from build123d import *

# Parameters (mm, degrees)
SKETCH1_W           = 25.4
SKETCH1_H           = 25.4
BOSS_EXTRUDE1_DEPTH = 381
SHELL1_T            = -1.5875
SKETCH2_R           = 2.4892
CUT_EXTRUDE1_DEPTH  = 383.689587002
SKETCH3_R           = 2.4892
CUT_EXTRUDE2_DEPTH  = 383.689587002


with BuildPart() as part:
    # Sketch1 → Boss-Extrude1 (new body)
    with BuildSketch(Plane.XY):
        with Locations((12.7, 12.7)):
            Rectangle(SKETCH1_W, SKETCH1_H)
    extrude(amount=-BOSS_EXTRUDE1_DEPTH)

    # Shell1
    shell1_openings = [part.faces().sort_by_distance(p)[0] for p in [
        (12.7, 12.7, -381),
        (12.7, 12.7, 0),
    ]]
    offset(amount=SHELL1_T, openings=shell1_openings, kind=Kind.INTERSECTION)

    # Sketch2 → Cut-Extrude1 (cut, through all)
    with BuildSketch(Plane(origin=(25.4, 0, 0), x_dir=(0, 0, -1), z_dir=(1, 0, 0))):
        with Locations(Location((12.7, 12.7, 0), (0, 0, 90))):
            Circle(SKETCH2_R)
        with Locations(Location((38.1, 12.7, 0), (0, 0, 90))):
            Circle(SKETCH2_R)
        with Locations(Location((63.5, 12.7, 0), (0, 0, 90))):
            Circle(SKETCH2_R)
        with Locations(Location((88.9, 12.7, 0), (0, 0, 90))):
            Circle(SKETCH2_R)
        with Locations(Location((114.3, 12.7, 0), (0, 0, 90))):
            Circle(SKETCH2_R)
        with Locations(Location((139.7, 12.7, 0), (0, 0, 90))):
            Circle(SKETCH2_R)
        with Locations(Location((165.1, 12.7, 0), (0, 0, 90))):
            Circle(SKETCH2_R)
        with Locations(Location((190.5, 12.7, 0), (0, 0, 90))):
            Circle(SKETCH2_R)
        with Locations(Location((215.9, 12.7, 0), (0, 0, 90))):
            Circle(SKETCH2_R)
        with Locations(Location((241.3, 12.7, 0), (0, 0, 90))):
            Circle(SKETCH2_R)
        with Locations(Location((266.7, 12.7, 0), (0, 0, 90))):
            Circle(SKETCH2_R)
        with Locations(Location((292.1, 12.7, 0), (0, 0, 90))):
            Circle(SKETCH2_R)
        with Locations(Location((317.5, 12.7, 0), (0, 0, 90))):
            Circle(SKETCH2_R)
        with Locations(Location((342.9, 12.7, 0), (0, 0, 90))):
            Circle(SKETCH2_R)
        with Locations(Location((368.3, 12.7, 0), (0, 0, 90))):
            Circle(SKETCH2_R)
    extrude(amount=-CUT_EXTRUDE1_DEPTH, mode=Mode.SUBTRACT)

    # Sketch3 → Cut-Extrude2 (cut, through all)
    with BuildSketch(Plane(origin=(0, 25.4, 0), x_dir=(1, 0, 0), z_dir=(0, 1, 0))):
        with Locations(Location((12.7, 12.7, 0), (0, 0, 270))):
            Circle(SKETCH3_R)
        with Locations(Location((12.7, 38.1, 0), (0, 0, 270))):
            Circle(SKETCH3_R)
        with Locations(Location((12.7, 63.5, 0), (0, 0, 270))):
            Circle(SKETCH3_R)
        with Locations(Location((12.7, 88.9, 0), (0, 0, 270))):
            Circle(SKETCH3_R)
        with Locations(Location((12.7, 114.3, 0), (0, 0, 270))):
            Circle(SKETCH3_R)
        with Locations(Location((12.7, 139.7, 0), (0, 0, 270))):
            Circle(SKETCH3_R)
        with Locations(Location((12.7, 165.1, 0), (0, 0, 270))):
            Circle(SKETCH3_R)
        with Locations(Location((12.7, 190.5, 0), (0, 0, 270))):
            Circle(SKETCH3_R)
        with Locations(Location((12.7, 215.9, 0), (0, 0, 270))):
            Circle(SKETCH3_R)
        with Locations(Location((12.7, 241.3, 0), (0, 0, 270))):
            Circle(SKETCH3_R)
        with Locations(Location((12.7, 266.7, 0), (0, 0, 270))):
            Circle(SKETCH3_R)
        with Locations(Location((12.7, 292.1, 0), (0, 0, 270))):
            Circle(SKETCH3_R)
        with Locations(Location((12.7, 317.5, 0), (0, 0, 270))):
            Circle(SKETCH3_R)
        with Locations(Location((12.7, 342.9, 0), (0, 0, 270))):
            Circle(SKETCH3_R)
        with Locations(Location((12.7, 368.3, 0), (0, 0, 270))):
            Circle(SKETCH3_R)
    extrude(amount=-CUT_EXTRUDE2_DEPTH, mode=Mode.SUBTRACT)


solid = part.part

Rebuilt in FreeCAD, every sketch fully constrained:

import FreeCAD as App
import Part
import Sketcher

V = App.Vector
Q = App.Units.Quantity


def faces_at(feature, points):
    """Names of the faces that lie closest to the given points."""
    faces = feature.Shape.Faces
    near = lambda p: min(range(len(faces)), key=lambda i: faces[i].distToShape(Part.Vertex(*p))[0])
    return sorted({f"Face{near(p) + 1}" for p in points})

doc = App.newDocument("Part")
body = doc.addObject("PartDesign::Body", "Body")

sketch1 = doc.addObject("Sketcher::SketchObject", "Sketch")
body.addObject(sketch1)
sketch1.AttachmentSupport = (doc.XY_Plane, [""])
sketch1.MapMode = "FlatFace"
sketch1.addGeometry([
    Part.LineSegment(V(0, 25, 0), V(0, 0, 0)),
    Part.LineSegment(V(0, 0, 0), V(25, 0, 0)),
    Part.LineSegment(V(25, 0, 0), V(25, 25, 0)),
    Part.LineSegment(V(25, 25, 0), V(0, 25, 0)),
], False)
sketch1.addConstraint([
    Sketcher.Constraint("Coincident", 0, 2, 1, 1),
    Sketcher.Constraint("Coincident", 1, 2, 2, 1),
    Sketcher.Constraint("Coincident", 2, 2, 3, 1),
    Sketcher.Constraint("Coincident", 3, 2, 0, 1),
    Sketcher.Constraint("Vertical", 0),
    Sketcher.Constraint("Horizontal", 1),
    Sketcher.Constraint("Vertical", 2),
    Sketcher.Constraint("Horizontal", 3),
    Sketcher.Constraint("Coincident", 0, 2, -1, 1),
    Sketcher.Constraint("Equal", 3, 0),
    Sketcher.Constraint("DistanceX", 1, 1, 1, 2, Q("1 in")),
])
pad1 = doc.addObject("PartDesign::Pad", "Pad")
body.addObject(pad1)
pad1.Profile = sketch1
pad1.Length = Q("15 in")
pad1.Reversed = True
doc.recompute()

thickness = doc.addObject("PartDesign::Thickness", "Thickness")
body.addObject(thickness)
thickness.Base = (pad1, faces_at(pad1, [(12.7, 12.7, -381), (12.7, 12.7, 0)]))
thickness.Value = Q("0.0625 in")
thickness.Reversed = True
thickness.Join = "Intersection"

sketch2 = doc.addObject("Sketcher::SketchObject", "Sketch001")
body.addObject(sketch2)
sketch2.AttachmentSupport = (doc.YZ_Plane, [""])
sketch2.MapMode = "FlatFace"
sketch2.AttachmentOffset = App.Placement(V(0, 0, 1 * 25.4), App.Rotation())
sketch2.addGeometry([
    Part.Circle(V(12.7, -12.7, 0), V(0, 0, 1), 2.5),
    Part.Circle(V(12.7, -38.1, 0), V(0, 0, 1), 2.5),
    Part.Circle(V(12.7, -63.5, 0), V(0, 0, 1), 2.5),
    Part.Circle(V(12.7, -88.9, 0), V(0, 0, 1), 2.5),
    Part.Circle(V(12.7, -114.3, 0), V(0, 0, 1), 2.5),
    Part.Circle(V(12.7, -139.7, 0), V(0, 0, 1), 2.5),
    Part.Circle(V(12.7, -165.1, 0), V(0, 0, 1), 2.5),
    Part.Circle(V(12.7, -190.5, 0), V(0, 0, 1), 2.5),
    Part.Circle(V(12.7, -215.9, 0), V(0, 0, 1), 2.5),
    Part.Circle(V(12.7, -241.3, 0), V(0, 0, 1), 2.5),
    Part.Circle(V(12.7, -266.7, 0), V(0, 0, 1), 2.5),
    Part.Circle(V(12.7, -292.1, 0), V(0, 0, 1), 2.5),
    Part.Circle(V(12.7, -317.5, 0), V(0, 0, 1), 2.5),
    Part.Circle(V(12.7, -342.9, 0), V(0, 0, 1), 2.5),
    Part.Circle(V(12.7, -368.3, 0), V(0, 0, 1), 2.5),
], False)
sketch2.addConstraint([
    Sketcher.Constraint("Equal", 0, 1),
    Sketcher.Constraint("Equal", 1, 2),
    Sketcher.Constraint("Equal", 2, 3),
    Sketcher.Constraint("Equal", 3, 4),
    Sketcher.Constraint("Equal", 4, 5),
    Sketcher.Constraint("Equal", 5, 6),
    Sketcher.Constraint("Equal", 6, 7),
    Sketcher.Constraint("Equal", 7, 8),
    Sketcher.Constraint("Equal", 8, 9),
    Sketcher.Constraint("Equal", 9, 10),
    Sketcher.Constraint("Equal", 10, 11),
    Sketcher.Constraint("Equal", 11, 12),
    Sketcher.Constraint("Equal", 12, 13),
    Sketcher.Constraint("Equal", 13, 14),
    Sketcher.Constraint("Vertical", 0, 3, 1, 3),
    Sketcher.Constraint("Vertical", 1, 3, 2, 3),
    Sketcher.Constraint("Vertical", 2, 3, 3, 3),
    Sketcher.Constraint("Vertical", 3, 3, 4, 3),
    Sketcher.Constraint("Vertical", 4, 3, 5, 3),
    Sketcher.Constraint("Vertical", 5, 3, 6, 3),
    Sketcher.Constraint("Vertical", 6, 3, 7, 3),
    Sketcher.Constraint("Vertical", 7, 3, 8, 3),
    Sketcher.Constraint("Vertical", 8, 3, 9, 3),
    Sketcher.Constraint("Vertical", 9, 3, 10, 3),
    Sketcher.Constraint("Vertical", 10, 3, 11, 3),
    Sketcher.Constraint("Vertical", 11, 3, 12, 3),
    Sketcher.Constraint("Vertical", 12, 3, 13, 3),
    Sketcher.Constraint("Vertical", 13, 3, 14, 3),
    Sketcher.Constraint("Diameter", 0, Q("0.196 in")),
    Sketcher.Constraint("DistanceY", 1, 3, 0, 3, Q("1 in")),
    Sketcher.Constraint("DistanceY", 2, 3, 1, 3, Q("1 in")),
    Sketcher.Constraint("DistanceY", 3, 3, 2, 3, Q("1 in")),
    Sketcher.Constraint("DistanceY", 4, 3, 3, 3, Q("1 in")),
    Sketcher.Constraint("DistanceY", 5, 3, 4, 3, Q("1 in")),
    Sketcher.Constraint("DistanceY", 6, 3, 5, 3, Q("1 in")),
    Sketcher.Constraint("DistanceY", 7, 3, 6, 3, Q("1 in")),
    Sketcher.Constraint("DistanceY", 8, 3, 7, 3, Q("1 in")),
    Sketcher.Constraint("DistanceY", 9, 3, 8, 3, Q("1 in")),
    Sketcher.Constraint("DistanceY", 10, 3, 9, 3, Q("1 in")),
    Sketcher.Constraint("DistanceY", 11, 3, 10, 3, Q("1 in")),
    Sketcher.Constraint("DistanceY", 12, 3, 11, 3, Q("1 in")),
    Sketcher.Constraint("DistanceY", 13, 3, 12, 3, Q("1 in")),
    Sketcher.Constraint("DistanceY", 14, 3, 13, 3, Q("1 in")),
    Sketcher.Constraint("DistanceX", -1, 1, 0, 3, Q("0.5 in")),
    Sketcher.Constraint("DistanceY", 0, 3, -1, 1, Q("0.5 in")),
])
pocket1 = doc.addObject("PartDesign::Pocket", "Pocket")
body.addObject(pocket1)
pocket1.Profile = sketch2
pocket1.Type = "ThroughAll"

sketch3 = doc.addObject("Sketcher::SketchObject", "Sketch002")
body.addObject(sketch3)
sketch3.AttachmentSupport = (doc.XZ_Plane, [""])
sketch3.MapMode = "FlatFace"
sketch3.AttachmentOffset = App.Placement(V(0, 0, -1 * 25.4), App.Rotation())
sketch3.addGeometry([
    Part.Circle(V(12.7, -12.7, 0), V(0, 0, 1), 2.5),
    Part.Circle(V(12.7, -38.1, 0), V(0, 0, 1), 2.5),
    Part.Circle(V(12.7, -63.5, 0), V(0, 0, 1), 2.5),
    Part.Circle(V(12.7, -88.9, 0), V(0, 0, 1), 2.5),
    Part.Circle(V(12.7, -114.3, 0), V(0, 0, 1), 2.5),
    Part.Circle(V(12.7, -139.7, 0), V(0, 0, 1), 2.5),
    Part.Circle(V(12.7, -165.1, 0), V(0, 0, 1), 2.5),
    Part.Circle(V(12.7, -190.5, 0), V(0, 0, 1), 2.5),
    Part.Circle(V(12.7, -215.9, 0), V(0, 0, 1), 2.5),
    Part.Circle(V(12.7, -241.3, 0), V(0, 0, 1), 2.5),
    Part.Circle(V(12.7, -266.7, 0), V(0, 0, 1), 2.5),
    Part.Circle(V(12.7, -292.1, 0), V(0, 0, 1), 2.5),
    Part.Circle(V(12.7, -317.5, 0), V(0, 0, 1), 2.5),
    Part.Circle(V(12.7, -342.9, 0), V(0, 0, 1), 2.5),
    Part.Circle(V(12.7, -368.3, 0), V(0, 0, 1), 2.5),
], False)
sketch3.addConstraint([
    Sketcher.Constraint("Equal", 0, 1),
    Sketcher.Constraint("Equal", 1, 2),
    Sketcher.Constraint("Equal", 2, 3),
    Sketcher.Constraint("Equal", 3, 4),
    Sketcher.Constraint("Equal", 4, 5),
    Sketcher.Constraint("Equal", 5, 6),
    Sketcher.Constraint("Equal", 6, 7),
    Sketcher.Constraint("Equal", 7, 8),
    Sketcher.Constraint("Equal", 8, 9),
    Sketcher.Constraint("Equal", 9, 10),
    Sketcher.Constraint("Equal", 10, 11),
    Sketcher.Constraint("Equal", 11, 12),
    Sketcher.Constraint("Equal", 12, 13),
    Sketcher.Constraint("Equal", 13, 14),
    Sketcher.Constraint("Vertical", 0, 3, 1, 3),
    Sketcher.Constraint("Vertical", 1, 3, 2, 3),
    Sketcher.Constraint("Vertical", 2, 3, 3, 3),
    Sketcher.Constraint("Vertical", 3, 3, 4, 3),
    Sketcher.Constraint("Vertical", 4, 3, 5, 3),
    Sketcher.Constraint("Vertical", 5, 3, 6, 3),
    Sketcher.Constraint("Vertical", 6, 3, 7, 3),
    Sketcher.Constraint("Vertical", 7, 3, 8, 3),
    Sketcher.Constraint("Vertical", 8, 3, 9, 3),
    Sketcher.Constraint("Vertical", 9, 3, 10, 3),
    Sketcher.Constraint("Vertical", 10, 3, 11, 3),
    Sketcher.Constraint("Vertical", 11, 3, 12, 3),
    Sketcher.Constraint("Vertical", 12, 3, 13, 3),
    Sketcher.Constraint("Vertical", 13, 3, 14, 3),
    Sketcher.Constraint("Diameter", 0, Q("0.196 in")),
    Sketcher.Constraint("DistanceY", 1, 3, 0, 3, Q("1 in")),
    Sketcher.Constraint("DistanceY", 2, 3, 1, 3, Q("1 in")),
    Sketcher.Constraint("DistanceY", 3, 3, 2, 3, Q("1 in")),
    Sketcher.Constraint("DistanceY", 4, 3, 3, 3, Q("1 in")),
    Sketcher.Constraint("DistanceY", 5, 3, 4, 3, Q("1 in")),
    Sketcher.Constraint("DistanceY", 6, 3, 5, 3, Q("1 in")),
    Sketcher.Constraint("DistanceY", 7, 3, 6, 3, Q("1 in")),
    Sketcher.Constraint("DistanceY", 8, 3, 7, 3, Q("1 in")),
    Sketcher.Constraint("DistanceY", 9, 3, 8, 3, Q("1 in")),
    Sketcher.Constraint("DistanceY", 10, 3, 9, 3, Q("1 in")),
    Sketcher.Constraint("DistanceY", 11, 3, 10, 3, Q("1 in")),
    Sketcher.Constraint("DistanceY", 12, 3, 11, 3, Q("1 in")),
    Sketcher.Constraint("DistanceY", 13, 3, 12, 3, Q("1 in")),
    Sketcher.Constraint("DistanceY", 14, 3, 13, 3, Q("1 in")),
    Sketcher.Constraint("DistanceX", -1, 1, 0, 3, Q("0.5 in")),
    Sketcher.Constraint("DistanceY", 0, 3, -1, 1, Q("0.5 in")),
])
pocket2 = doc.addObject("PartDesign::Pocket", "Pocket001")
body.addObject(pocket2)
pocket2.Profile = sketch3
pocket2.Type = "ThroughAll"
pocket2.Reversed = True

doc.recompute()
